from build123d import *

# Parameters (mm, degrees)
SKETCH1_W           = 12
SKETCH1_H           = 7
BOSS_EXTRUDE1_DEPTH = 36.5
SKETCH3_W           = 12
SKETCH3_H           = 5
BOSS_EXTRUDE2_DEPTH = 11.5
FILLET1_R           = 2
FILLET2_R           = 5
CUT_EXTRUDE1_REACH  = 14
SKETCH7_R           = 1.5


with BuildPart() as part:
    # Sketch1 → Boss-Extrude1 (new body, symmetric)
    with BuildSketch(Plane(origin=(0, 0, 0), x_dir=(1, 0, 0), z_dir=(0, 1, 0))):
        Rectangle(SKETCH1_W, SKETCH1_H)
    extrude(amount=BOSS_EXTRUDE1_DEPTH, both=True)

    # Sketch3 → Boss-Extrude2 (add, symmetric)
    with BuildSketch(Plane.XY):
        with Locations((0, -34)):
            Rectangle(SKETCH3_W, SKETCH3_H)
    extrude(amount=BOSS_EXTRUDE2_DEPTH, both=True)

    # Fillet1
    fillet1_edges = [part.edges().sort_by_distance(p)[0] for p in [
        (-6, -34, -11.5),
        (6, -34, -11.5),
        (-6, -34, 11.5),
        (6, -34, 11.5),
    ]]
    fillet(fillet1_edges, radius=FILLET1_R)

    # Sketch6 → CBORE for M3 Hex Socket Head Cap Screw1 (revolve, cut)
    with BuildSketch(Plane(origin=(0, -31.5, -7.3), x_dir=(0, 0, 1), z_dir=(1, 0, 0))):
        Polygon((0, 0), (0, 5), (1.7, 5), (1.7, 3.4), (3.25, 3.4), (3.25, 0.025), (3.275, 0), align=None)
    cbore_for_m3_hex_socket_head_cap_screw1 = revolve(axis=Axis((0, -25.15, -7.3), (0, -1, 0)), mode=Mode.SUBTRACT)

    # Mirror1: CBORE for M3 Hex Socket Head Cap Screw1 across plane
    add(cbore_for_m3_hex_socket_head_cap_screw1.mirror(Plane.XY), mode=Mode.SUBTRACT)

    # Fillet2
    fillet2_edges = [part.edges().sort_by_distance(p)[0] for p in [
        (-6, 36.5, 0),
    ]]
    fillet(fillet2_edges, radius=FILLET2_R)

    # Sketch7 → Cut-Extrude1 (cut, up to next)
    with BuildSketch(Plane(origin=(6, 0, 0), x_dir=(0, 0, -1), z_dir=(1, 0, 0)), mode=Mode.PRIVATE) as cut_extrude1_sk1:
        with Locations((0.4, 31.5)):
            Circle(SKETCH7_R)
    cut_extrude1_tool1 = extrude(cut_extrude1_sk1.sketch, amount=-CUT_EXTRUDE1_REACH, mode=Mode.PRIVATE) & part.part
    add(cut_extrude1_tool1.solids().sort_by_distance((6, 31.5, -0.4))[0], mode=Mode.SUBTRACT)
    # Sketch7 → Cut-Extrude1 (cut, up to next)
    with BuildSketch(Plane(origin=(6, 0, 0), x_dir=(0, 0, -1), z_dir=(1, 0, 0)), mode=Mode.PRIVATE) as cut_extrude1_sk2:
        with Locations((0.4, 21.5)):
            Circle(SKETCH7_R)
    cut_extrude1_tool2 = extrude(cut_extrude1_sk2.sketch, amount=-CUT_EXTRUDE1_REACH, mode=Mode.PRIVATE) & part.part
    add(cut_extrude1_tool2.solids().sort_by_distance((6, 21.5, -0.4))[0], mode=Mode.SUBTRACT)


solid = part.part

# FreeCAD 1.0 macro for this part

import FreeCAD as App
import Part
import Sketcher

V = App.Vector
Q = App.Units.Quantity


def edges_at(feature, points):
    """Names of the edges that pass closest to the given points."""
    edges = feature.Shape.Edges
    near = lambda p: min(range(len(edges)), key=lambda i: edges[i].distToShape(Part.Vertex(*p))[0])
    return sorted({f"Edge{near(p) + 1}" for p in points})


def add_polygon(sketch, points):
    """Adds a closed chain of lines whose ends are joined by coincident constraints."""
    first, n = sketch.GeometryCount, len(points)
    for a, b in zip(points, points[1:] + points[:1]):
        sketch.addGeometry(Part.LineSegment(App.Vector(*a, 0), App.Vector(*b, 0)), False)
    for i in range(n):
        sketch.addConstraint(Sketcher.Constraint("Coincident", first + i, 2, first + (i + 1) % n, 1))

doc = App.newDocument("Part")
body = doc.addObject("PartDesign::Body", "Body")

sketch1 = body.newObject("Sketcher::SketchObject", "Sketch")
sketch1.AttachmentSupport = (doc.getObject("XZ_Plane"), [""])
sketch1.MapMode = "FlatFace"
add_polygon(sketch1, [(-6, -4), (-6, 4), (6, 4), (6, -4)])
sketch1.addConstraint(Sketcher.Constraint("Vertical", 0))
sketch1.addConstraint(Sketcher.Constraint("Horizontal", 1))
sketch1.addConstraint(Sketcher.Constraint("Vertical", 2))
sketch1.addConstraint(Sketcher.Constraint("Horizontal", 3))
sketch1.addConstraint(Sketcher.Constraint("Symmetric", 0, 2, 2, 2, -1, 1))
sketch1.addConstraint(Sketcher.Constraint("DistanceX", 1, 1, 1, 2, Q("12 mm")))
sketch1.addConstraint(Sketcher.Constraint("DistanceY", 0, 1, 0, 2, Q("7 mm")))
pad1 = body.newObject("PartDesign::Pad", "Pad")
pad1.Profile = sketch1
pad1.Length = 73
pad1.Midplane = True

sketch2 = body.newObject("Sketcher::SketchObject", "Sketch001")
sketch2.AttachmentSupport = (doc.getObject("XY_Plane"), [""])
sketch2.MapMode = "FlatFace"
add_polygon(sketch2, [(-6, -32), (-6, -36), (6, -36), (6, -32)])
sketch2.addConstraint(Sketcher.Constraint("Vertical", 0))
sketch2.addConstraint(Sketcher.Constraint("Horizontal", 1))
sketch2.addConstraint(Sketcher.Constraint("Vertical", 2))
sketch2.addConstraint(Sketcher.Constraint("Horizontal", 3))
sketch2.addConstraint(Sketcher.Constraint("DistanceX", 1, 1, 1, 2, Q("12 mm")))
sketch2.addConstraint(Sketcher.Constraint("DistanceY", 0, 2, 0, 1, Q("5 mm")))
sketch2.addConstraint(Sketcher.Constraint("DistanceX", 0, 2, -1, 1, Q("6 mm")))
sketch2.addConstraint(Sketcher.Constraint("DistanceY", 0, 2, -1, 1, Q("36.5 mm")))
pad2 = body.newObject("PartDesign::Pad", "Pad001")
pad2.Profile = sketch2
pad2.Length = 23
pad2.Midplane = True
doc.recompute()

fillet = body.newObject("PartDesign::Fillet", "Fillet")
fillet.Base = (pad2, edges_at(pad2, [
    (-6, -34, -11.5),
    (6, -34, -11.5),
    (-6, -34, 11.5),
    (6, -34, 11.5),
]))
fillet.Radius = 2

sketch3 = body.newObject("Sketcher::SketchObject", "Sketch002")
sketch3.AttachmentSupport = (doc.getObject("YZ_Plane"), [""])
sketch3.MapMode = "FlatFace"
add_polygon(sketch3, [(-36.5, -7.3), (-31.5, -7.3), (-31.5, -4.025), (-31.525, -4.05), (-34.9, -4.05), (-34.9, -5.6), (-36.5, -5.6)])
sketch3.addGeometry(Part.LineSegment(V(-31.5, -7.3, 0), V(-36.5, -7.3, 0)), True)
sketch3.addConstraint(Sketcher.Constraint("Horizontal", 0))
sketch3.addConstraint(Sketcher.Constraint("Vertical", 1))
sketch3.addConstraint(Sketcher.Constraint("Horizontal", 3))
sketch3.addConstraint(Sketcher.Constraint("Vertical", 4))
sketch3.addConstraint(Sketcher.Constraint("Horizontal", 5))
sketch3.addConstraint(Sketcher.Constraint("Vertical", 6))
sketch3.addConstraint(Sketcher.Constraint("Horizontal", 7))
sketch3.addConstraint(Sketcher.Constraint("Coincident", 7, 1, 0, 2))
sketch3.addConstraint(Sketcher.Constraint("Vertical", 5, 2, 7, 2))
sketch3.addConstraint(Sketcher.Constraint("DistanceX", 0, 1, 0, 2, Q("5 mm")))
sketch3.addConstraint(Sketcher.Constraint("Angle", 2, Q("-135 deg")))
sketch3.addConstraint(Sketcher.Constraint("DistanceX", 5, 2, 5, 1, Q("1.6 mm")))
sketch3.addConstraint(Sketcher.Constraint("DistanceY", 6, 2, 6, 1, Q("1.7 mm")))
sketch3.addConstraint(Sketcher.Constraint("DistanceY", 4, 2, 4, 1, Q("1.55 mm")))
sketch3.addConstraint(Sketcher.Constraint("DistanceX", 0, 2, -1, 1, Q("31.5 mm")))
sketch3.addConstraint(Sketcher.Constraint("DistanceY", 0, 2, -1, 1, Q("7.3 mm")))
sketch3.addConstraint(Sketcher.Constraint("DistanceX", 3, 2, 3, 1, Q("3.375 mm")))
groove = body.newObject("PartDesign::Groove", "Groove")
groove.Profile = sketch3
groove.ReferenceAxis = (sketch3, ["Axis0"])
groove.Angle = 360
doc.recompute()

mirrored = body.newObject("PartDesign::Mirrored", "Mirrored")
mirrored.Originals = [groove]
mirrored.MirrorPlane = (doc.getObject("XY_Plane"), [""])
body.Tip = mirrored
doc.recompute()

fillet2 = body.newObject("PartDesign::Fillet", "Fillet001")
fillet2.Base = (mirrored, edges_at(mirrored, [(-6, 36.5, 0)]))
fillet2.Radius = 5

sketch4 = body.newObject("Sketcher::SketchObject", "Sketch003")
sketch4.AttachmentSupport = (doc.getObject("YZ_Plane"), [""])
sketch4.MapMode = "FlatFace"
sketch4.AttachmentOffset = App.Placement(V(0, 0, 6), App.Rotation())
sketch4.addGeometry(Part.Circle(V(31.5, -0.4, 0), V(0, 0, 1), 1.5), False)
sketch4.addConstraint(Sketcher.Constraint("Diameter", 0, Q("3 mm")))
sketch4.addConstraint(Sketcher.Constraint("DistanceX", -1, 1, 0, 3, Q("31.5 mm")))
sketch4.addConstraint(Sketcher.Constraint("DistanceY", 0, 3, -1, 1, Q("0.4 mm")))
pocket1 = body.newObject("PartDesign::Pocket", "Pocket")
pocket1.Profile = sketch4
pocket1.Type = "UpToFirst"

sketch5 = body.newObject("Sketcher::SketchObject", "Sketch004")
sketch5.AttachmentSupport = (doc.getObject("YZ_Plane"), [""])
sketch5.MapMode = "FlatFace"
sketch5.AttachmentOffset = App.Placement(V(0, 0, 6), App.Rotation())
sketch5.addGeometry(Part.Circle(V(21.5, -0.4, 0), V(0, 0, 1), 1.5), False)
sketch5.addConstraint(Sketcher.Constraint("Diameter", 0, Q("3 mm")))
sketch5.addConstraint(Sketcher.Constraint("DistanceX", -1, 1, 0, 3, Q("21.5 mm")))
sketch5.addConstraint(Sketcher.Constraint("DistanceY", 0, 3, -1, 1, Q("0.4 mm")))
pocket2 = body.newObject("PartDesign::Pocket", "Pocket001")
pocket2.Profile = sketch5
pocket2.Type = "UpToFirst"

doc.recompute()
